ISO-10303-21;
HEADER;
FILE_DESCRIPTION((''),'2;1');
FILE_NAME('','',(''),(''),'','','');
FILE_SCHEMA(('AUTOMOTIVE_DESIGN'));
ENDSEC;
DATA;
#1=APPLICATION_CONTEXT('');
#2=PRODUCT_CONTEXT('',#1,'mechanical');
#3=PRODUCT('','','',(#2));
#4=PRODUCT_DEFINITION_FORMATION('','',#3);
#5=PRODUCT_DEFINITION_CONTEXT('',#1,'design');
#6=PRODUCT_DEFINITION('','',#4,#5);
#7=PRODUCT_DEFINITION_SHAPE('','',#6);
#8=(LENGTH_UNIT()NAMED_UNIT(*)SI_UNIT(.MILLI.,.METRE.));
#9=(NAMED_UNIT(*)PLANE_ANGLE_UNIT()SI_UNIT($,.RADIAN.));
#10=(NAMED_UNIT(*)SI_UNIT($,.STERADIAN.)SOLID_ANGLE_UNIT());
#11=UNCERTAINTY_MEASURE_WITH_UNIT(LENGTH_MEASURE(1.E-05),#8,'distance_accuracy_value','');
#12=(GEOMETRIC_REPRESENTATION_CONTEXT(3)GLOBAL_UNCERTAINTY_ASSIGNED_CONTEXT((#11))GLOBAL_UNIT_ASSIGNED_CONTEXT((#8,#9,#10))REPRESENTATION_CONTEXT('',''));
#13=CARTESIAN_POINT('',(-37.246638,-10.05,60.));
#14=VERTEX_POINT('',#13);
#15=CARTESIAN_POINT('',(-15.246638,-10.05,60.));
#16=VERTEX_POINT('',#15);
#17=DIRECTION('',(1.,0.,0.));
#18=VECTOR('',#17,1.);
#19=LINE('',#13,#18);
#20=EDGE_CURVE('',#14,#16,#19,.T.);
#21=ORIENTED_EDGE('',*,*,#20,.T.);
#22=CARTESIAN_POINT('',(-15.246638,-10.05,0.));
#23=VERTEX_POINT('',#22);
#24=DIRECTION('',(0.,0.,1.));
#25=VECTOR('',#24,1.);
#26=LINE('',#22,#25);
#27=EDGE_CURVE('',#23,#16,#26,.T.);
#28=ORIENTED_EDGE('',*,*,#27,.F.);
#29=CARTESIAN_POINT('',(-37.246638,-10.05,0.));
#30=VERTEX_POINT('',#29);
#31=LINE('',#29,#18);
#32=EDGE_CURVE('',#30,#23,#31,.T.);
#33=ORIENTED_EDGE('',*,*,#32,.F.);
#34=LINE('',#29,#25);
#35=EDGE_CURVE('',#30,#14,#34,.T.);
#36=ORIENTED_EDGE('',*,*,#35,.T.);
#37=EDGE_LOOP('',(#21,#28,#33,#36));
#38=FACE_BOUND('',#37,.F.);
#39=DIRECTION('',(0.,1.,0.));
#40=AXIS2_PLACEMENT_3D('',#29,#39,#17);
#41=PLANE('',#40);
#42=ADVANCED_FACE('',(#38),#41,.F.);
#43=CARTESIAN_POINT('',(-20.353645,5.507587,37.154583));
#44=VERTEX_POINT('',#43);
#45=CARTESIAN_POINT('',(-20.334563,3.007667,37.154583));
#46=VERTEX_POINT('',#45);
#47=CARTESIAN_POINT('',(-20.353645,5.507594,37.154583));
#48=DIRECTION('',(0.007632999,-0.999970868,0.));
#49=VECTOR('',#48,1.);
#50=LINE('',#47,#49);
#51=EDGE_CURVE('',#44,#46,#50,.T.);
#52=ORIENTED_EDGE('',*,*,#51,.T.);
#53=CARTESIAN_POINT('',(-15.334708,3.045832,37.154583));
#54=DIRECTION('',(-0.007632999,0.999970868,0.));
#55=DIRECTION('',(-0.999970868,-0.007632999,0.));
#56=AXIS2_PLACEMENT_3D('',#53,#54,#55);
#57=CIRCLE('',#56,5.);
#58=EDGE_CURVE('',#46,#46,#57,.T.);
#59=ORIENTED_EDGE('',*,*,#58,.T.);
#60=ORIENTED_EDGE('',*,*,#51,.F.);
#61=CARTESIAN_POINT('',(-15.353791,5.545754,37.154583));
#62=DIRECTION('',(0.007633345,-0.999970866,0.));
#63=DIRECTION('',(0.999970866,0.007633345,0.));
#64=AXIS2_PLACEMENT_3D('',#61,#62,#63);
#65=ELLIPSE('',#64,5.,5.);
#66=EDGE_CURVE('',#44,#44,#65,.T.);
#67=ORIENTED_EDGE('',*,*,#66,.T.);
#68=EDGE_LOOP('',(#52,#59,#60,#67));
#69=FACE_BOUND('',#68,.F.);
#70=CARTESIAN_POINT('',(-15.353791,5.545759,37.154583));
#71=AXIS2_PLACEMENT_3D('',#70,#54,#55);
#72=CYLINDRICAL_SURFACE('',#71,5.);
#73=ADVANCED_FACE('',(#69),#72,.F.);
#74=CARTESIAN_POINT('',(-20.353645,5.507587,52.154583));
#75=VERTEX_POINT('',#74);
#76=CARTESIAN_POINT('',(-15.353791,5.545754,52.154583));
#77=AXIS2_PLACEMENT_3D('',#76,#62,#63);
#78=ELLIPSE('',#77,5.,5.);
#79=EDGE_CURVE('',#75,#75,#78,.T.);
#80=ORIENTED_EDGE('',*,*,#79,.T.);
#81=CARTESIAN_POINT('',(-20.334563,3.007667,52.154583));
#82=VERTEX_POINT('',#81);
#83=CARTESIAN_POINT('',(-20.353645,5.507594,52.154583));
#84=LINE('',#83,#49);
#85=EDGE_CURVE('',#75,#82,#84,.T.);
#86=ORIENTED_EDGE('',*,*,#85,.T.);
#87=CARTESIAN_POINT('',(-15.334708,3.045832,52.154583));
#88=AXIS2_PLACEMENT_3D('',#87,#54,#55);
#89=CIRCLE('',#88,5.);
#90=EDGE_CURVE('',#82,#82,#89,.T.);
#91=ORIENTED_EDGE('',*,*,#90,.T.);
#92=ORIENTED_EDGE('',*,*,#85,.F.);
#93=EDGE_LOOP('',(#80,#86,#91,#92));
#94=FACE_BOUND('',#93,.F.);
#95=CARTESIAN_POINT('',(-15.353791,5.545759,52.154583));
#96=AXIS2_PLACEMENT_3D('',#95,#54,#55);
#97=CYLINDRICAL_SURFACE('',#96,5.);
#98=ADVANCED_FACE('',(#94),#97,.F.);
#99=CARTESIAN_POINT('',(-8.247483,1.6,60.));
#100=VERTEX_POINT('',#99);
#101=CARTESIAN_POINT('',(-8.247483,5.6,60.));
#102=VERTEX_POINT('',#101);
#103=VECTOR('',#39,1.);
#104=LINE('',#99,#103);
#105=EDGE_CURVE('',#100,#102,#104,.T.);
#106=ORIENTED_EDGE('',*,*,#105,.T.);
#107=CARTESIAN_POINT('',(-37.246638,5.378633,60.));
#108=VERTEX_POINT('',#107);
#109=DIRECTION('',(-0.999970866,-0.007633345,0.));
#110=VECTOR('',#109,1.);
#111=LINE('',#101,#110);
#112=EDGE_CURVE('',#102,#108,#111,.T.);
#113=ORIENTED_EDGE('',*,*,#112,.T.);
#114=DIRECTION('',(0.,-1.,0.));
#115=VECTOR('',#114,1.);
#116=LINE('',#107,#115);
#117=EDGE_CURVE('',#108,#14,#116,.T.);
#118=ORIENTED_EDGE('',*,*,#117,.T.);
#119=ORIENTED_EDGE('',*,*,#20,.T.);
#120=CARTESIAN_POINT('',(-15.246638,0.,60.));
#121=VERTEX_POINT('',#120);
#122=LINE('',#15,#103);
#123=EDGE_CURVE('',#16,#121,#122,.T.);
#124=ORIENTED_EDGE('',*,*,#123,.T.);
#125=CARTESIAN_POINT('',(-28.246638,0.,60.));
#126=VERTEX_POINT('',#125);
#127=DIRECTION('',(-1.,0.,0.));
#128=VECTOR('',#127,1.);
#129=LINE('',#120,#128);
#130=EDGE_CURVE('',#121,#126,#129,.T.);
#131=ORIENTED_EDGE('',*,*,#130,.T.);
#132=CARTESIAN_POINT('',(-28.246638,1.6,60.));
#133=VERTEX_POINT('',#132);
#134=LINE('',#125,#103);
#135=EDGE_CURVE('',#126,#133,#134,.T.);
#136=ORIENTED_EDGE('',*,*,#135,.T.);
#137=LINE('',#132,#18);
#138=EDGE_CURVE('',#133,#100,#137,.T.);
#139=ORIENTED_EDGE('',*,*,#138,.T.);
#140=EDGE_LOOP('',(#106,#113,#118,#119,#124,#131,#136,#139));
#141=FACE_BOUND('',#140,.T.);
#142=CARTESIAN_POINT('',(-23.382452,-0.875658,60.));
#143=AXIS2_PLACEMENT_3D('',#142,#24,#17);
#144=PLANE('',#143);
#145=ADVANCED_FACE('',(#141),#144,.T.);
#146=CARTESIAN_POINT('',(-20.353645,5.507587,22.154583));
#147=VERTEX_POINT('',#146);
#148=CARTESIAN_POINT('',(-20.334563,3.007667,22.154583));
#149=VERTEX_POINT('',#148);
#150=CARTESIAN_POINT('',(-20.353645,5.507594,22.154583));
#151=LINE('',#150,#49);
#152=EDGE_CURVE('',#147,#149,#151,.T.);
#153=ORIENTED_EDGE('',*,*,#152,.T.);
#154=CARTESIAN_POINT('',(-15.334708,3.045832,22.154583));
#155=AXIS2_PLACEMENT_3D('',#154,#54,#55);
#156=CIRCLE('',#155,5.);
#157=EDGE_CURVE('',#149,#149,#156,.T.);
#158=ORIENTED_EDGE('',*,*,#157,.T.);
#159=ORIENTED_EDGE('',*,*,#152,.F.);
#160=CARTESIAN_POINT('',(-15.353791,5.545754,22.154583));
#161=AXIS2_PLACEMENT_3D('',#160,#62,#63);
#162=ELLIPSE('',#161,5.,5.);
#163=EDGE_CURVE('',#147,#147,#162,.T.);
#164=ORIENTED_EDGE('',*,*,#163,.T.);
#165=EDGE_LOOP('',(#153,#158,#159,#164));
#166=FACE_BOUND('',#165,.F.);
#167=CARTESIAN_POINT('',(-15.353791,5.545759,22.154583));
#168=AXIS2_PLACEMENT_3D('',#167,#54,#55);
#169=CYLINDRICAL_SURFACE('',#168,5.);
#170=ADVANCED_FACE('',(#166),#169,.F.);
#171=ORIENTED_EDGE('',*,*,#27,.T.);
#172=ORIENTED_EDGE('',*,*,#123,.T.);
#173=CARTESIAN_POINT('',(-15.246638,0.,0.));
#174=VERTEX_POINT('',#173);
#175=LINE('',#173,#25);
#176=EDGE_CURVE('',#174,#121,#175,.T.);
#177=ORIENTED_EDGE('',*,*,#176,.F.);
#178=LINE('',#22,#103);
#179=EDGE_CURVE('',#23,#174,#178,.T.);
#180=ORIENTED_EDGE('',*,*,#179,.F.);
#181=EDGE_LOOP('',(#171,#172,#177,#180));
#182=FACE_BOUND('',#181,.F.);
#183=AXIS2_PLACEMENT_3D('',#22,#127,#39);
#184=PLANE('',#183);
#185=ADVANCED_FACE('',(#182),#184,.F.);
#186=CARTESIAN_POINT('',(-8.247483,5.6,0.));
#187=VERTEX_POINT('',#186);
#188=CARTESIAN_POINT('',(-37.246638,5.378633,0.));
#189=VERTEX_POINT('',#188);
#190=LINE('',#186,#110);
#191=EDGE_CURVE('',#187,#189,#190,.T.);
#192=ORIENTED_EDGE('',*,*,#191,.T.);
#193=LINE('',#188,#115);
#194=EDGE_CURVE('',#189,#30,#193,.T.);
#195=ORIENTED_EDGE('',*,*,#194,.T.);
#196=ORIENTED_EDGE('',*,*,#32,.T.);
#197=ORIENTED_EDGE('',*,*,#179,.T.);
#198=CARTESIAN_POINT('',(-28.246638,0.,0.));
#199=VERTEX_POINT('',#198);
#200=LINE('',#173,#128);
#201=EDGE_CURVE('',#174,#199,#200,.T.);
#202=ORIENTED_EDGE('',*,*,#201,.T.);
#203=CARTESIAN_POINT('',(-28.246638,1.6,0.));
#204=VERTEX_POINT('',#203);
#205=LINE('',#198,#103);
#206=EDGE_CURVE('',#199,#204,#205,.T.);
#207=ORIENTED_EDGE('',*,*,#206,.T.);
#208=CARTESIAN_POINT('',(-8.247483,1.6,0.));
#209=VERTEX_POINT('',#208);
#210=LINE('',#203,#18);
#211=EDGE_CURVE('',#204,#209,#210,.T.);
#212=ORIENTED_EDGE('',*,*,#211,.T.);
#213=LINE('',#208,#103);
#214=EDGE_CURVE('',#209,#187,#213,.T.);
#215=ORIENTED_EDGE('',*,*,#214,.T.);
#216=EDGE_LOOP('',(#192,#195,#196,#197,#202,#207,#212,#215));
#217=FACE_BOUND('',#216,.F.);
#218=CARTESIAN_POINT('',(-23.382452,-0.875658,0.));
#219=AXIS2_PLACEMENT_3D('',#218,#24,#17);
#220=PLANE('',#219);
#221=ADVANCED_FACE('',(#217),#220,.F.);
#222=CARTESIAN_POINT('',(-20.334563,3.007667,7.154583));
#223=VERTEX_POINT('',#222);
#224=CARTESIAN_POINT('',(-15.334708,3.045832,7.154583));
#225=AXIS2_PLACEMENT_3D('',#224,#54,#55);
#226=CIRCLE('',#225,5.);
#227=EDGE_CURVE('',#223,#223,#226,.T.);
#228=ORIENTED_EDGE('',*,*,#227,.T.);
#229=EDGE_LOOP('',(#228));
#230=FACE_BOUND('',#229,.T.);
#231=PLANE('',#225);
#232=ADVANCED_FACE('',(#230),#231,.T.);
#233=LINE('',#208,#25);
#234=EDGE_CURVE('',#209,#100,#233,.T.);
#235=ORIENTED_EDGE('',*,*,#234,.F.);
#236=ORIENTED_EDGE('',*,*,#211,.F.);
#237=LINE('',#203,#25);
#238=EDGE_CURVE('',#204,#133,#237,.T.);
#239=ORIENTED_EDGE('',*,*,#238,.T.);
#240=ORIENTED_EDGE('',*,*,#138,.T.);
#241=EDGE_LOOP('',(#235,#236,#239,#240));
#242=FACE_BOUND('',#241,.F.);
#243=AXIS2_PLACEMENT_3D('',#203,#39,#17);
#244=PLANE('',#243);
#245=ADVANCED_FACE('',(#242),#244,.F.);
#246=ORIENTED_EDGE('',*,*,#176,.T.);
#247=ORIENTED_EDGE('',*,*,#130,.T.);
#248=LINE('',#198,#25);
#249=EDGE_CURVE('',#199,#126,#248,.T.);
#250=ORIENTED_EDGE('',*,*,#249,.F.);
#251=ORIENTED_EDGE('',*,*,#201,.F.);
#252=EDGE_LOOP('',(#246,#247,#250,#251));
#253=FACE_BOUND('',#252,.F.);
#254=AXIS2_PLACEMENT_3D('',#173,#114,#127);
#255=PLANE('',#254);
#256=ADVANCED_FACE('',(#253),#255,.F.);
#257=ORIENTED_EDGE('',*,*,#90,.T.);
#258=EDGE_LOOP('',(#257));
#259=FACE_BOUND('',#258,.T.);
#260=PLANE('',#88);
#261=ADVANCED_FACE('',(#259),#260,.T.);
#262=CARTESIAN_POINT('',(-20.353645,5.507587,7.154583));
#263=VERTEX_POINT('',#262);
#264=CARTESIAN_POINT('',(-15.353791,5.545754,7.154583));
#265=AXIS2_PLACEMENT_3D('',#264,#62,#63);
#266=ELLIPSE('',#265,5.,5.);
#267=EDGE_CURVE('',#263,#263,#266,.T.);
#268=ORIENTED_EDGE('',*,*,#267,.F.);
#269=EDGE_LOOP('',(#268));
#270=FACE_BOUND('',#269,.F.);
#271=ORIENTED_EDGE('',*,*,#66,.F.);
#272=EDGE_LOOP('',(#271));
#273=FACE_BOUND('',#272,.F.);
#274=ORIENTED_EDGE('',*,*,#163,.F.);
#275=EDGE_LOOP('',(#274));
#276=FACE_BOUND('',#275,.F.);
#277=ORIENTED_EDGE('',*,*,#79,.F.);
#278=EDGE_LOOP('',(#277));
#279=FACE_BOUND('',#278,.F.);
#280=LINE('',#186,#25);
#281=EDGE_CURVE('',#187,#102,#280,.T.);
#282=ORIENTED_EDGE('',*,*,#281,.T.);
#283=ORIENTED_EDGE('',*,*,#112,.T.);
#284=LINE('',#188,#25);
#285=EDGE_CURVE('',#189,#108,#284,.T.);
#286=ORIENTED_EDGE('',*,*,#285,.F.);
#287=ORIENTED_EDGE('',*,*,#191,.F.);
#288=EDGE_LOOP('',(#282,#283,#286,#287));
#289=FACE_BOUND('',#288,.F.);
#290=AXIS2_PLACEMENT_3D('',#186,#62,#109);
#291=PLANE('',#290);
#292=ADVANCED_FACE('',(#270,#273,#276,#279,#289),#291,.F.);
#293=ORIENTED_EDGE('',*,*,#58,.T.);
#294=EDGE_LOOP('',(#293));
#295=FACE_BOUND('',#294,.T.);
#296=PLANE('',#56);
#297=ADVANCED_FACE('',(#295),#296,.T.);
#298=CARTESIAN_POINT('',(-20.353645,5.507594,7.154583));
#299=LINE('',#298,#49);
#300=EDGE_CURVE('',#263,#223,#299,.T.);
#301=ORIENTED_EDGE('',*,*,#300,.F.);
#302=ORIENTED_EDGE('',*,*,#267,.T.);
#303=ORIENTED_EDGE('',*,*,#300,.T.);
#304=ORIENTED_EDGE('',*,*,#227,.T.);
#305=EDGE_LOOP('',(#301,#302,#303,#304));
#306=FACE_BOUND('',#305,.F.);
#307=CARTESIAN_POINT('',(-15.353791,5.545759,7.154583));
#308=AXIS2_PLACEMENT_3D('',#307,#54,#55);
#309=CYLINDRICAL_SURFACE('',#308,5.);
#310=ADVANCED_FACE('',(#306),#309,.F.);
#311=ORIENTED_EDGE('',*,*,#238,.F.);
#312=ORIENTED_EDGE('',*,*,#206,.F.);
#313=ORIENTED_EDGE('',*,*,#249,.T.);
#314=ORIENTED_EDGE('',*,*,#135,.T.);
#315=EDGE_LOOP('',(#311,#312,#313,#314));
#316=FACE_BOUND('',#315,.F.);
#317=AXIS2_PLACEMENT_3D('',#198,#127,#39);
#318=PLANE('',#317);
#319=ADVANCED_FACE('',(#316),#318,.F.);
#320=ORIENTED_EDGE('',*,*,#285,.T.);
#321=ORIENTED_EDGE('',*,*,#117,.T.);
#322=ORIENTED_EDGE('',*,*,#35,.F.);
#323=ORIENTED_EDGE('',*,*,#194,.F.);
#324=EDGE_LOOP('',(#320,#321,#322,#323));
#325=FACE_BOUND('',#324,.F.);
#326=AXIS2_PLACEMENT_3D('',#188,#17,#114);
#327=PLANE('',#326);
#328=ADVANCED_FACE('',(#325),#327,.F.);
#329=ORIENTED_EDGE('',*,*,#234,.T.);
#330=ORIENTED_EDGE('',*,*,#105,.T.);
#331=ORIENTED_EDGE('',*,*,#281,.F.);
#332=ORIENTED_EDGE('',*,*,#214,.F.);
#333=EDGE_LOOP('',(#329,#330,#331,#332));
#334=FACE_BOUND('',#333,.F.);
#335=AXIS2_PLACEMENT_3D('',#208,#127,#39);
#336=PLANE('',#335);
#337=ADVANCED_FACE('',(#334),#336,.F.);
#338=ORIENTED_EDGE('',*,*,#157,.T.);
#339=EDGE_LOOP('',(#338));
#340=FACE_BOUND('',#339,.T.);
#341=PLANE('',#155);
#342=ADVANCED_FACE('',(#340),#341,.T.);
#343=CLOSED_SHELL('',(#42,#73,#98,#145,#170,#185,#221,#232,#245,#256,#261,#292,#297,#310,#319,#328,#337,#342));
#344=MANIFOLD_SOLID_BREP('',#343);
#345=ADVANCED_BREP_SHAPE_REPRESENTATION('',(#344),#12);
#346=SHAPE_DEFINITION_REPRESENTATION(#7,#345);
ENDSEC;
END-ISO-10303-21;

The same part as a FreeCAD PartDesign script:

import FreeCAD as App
import Part
import Sketcher

V = App.Vector
Q = App.Units.Quantity


def add_polygon(sketch, points):
    """Adds a closed chain of lines whose ends are joined by coincident constraints."""
    first, n = sketch.GeometryCount, len(points)
    for a, b in zip(points, points[1:] + points[:1]):
        sketch.addGeometry(Part.LineSegment(App.Vector(*a, 0), App.Vector(*b, 0)), False)
    for i in range(n):
        sketch.addConstraint(Sketcher.Constraint("Coincident", first + i, 2, first + (i + 1) % n, 1))

doc = App.newDocument("Part")
body = doc.addObject("PartDesign::Body", "Body")

# Sketch on XY plane
sketch1 = body.newObject("Sketcher::SketchObject", "Sketch")
sketch1.AttachmentSupport = (doc.getObject("XY_Plane"), [""])
sketch1.MapMode = "FlatFace"
add_polygon(sketch1, [(-8.2, 5.6), (-37.2, 5.4), (-37.2, -10.1), (-15.2, -10.1), (-15.2, 0), (-28.2, 0), (-28.2, 1.6), (-8.2, 1.6)])  # lines 0-7
sketch1.addConstraint([
    Sketcher.Constraint("Vertical", 1),
    Sketcher.Constraint("Horizontal", 2),
    Sketcher.Constraint("Vertical", 3),
    Sketcher.Constraint("Horizontal", 4),
    Sketcher.Constraint("Vertical", 5),
    Sketcher.Constraint("Horizontal", 6),
    Sketcher.Constraint("Vertical", 7),
    Sketcher.Constraint("PointOnObject", 3, 2, -1),
    Sketcher.Constraint("DistanceX", 2, 1, 2, 2, Q("22 mm")),
    Sketcher.Constraint("DistanceX", 4, 2, 4, 1, Q("13 mm")),
    Sketcher.Constraint("DistanceY", 7, 1, 7, 2, Q("4 mm")),
    Sketcher.Constraint("Distance", 0, Q("29 mm")),
    Sketcher.Constraint("DistanceY", 5, 1, 5, 2, Q("1.6 mm")),
    Sketcher.Constraint("DistanceY", 3, 1, 3, 2, Q("10.05 mm")),
    Sketcher.Constraint("DistanceX", 6, 1, 6, 2, Q("19.999155 mm")),
    Sketcher.Constraint("DistanceX", 2, 2, -1, 1, Q("15.246638 mm")),
])
pad1 = body.newObject("PartDesign::Pad", "Pad")
pad1.Profile = sketch1
pad1.Length = 60

# Sketch on an angled plane
sketch2 = body.newObject("Sketcher::SketchObject", "Sketch001")
sketch2.Placement = App.Placement(V(-0.043226, 5.662628, 0), App.Rotation(V(-0.999970868, -0.007632999, 0), V(0, 0, 1), V(-0.007632999, 0.999970868, 0), "ZXY"))
sketch2.addGeometry([
    Part.Circle(V(15, 7, 0), V(0, 0, 1), 5),
    Part.Circle(V(15, 22, 0), V(0, 0, 1), 5),
    Part.Circle(V(15, 37, 0), V(0, 0, 1), 5),
    Part.Circle(V(15, 52, 0), V(0, 0, 1), 5),
], False)
sketch2.addConstraint([
    Sketcher.Constraint("Equal", 0, 1),
    Sketcher.Constraint("Equal", 1, 2),
    Sketcher.Constraint("Equal", 2, 3),
    Sketcher.Constraint("Vertical", 0, 3, 1, 3),
    Sketcher.Constraint("Vertical", 1, 3, 2, 3),
    Sketcher.Constraint("Vertical", 2, 3, 3, 3),
    Sketcher.Constraint("Diameter", 0, Q("10 mm")),
    Sketcher.Constraint("DistanceY", 0, 3, 1, 3, Q("15 mm")),
    Sketcher.Constraint("DistanceY", 1, 3, 2, 3, Q("15 mm")),
    Sketcher.Constraint("DistanceY", 2, 3, 3, 3, Q("15 mm")),
    Sketcher.Constraint("DistanceX", -1, 1, 0, 3, Q("15.311011 mm")),
    Sketcher.Constraint("DistanceY", -1, 1, 0, 3, Q("7.154583 mm")),
])
pocket1 = body.newObject("PartDesign::Pocket", "Pocket")
pocket1.Profile = sketch2
pocket1.Length = 2.5

doc.recompute()
